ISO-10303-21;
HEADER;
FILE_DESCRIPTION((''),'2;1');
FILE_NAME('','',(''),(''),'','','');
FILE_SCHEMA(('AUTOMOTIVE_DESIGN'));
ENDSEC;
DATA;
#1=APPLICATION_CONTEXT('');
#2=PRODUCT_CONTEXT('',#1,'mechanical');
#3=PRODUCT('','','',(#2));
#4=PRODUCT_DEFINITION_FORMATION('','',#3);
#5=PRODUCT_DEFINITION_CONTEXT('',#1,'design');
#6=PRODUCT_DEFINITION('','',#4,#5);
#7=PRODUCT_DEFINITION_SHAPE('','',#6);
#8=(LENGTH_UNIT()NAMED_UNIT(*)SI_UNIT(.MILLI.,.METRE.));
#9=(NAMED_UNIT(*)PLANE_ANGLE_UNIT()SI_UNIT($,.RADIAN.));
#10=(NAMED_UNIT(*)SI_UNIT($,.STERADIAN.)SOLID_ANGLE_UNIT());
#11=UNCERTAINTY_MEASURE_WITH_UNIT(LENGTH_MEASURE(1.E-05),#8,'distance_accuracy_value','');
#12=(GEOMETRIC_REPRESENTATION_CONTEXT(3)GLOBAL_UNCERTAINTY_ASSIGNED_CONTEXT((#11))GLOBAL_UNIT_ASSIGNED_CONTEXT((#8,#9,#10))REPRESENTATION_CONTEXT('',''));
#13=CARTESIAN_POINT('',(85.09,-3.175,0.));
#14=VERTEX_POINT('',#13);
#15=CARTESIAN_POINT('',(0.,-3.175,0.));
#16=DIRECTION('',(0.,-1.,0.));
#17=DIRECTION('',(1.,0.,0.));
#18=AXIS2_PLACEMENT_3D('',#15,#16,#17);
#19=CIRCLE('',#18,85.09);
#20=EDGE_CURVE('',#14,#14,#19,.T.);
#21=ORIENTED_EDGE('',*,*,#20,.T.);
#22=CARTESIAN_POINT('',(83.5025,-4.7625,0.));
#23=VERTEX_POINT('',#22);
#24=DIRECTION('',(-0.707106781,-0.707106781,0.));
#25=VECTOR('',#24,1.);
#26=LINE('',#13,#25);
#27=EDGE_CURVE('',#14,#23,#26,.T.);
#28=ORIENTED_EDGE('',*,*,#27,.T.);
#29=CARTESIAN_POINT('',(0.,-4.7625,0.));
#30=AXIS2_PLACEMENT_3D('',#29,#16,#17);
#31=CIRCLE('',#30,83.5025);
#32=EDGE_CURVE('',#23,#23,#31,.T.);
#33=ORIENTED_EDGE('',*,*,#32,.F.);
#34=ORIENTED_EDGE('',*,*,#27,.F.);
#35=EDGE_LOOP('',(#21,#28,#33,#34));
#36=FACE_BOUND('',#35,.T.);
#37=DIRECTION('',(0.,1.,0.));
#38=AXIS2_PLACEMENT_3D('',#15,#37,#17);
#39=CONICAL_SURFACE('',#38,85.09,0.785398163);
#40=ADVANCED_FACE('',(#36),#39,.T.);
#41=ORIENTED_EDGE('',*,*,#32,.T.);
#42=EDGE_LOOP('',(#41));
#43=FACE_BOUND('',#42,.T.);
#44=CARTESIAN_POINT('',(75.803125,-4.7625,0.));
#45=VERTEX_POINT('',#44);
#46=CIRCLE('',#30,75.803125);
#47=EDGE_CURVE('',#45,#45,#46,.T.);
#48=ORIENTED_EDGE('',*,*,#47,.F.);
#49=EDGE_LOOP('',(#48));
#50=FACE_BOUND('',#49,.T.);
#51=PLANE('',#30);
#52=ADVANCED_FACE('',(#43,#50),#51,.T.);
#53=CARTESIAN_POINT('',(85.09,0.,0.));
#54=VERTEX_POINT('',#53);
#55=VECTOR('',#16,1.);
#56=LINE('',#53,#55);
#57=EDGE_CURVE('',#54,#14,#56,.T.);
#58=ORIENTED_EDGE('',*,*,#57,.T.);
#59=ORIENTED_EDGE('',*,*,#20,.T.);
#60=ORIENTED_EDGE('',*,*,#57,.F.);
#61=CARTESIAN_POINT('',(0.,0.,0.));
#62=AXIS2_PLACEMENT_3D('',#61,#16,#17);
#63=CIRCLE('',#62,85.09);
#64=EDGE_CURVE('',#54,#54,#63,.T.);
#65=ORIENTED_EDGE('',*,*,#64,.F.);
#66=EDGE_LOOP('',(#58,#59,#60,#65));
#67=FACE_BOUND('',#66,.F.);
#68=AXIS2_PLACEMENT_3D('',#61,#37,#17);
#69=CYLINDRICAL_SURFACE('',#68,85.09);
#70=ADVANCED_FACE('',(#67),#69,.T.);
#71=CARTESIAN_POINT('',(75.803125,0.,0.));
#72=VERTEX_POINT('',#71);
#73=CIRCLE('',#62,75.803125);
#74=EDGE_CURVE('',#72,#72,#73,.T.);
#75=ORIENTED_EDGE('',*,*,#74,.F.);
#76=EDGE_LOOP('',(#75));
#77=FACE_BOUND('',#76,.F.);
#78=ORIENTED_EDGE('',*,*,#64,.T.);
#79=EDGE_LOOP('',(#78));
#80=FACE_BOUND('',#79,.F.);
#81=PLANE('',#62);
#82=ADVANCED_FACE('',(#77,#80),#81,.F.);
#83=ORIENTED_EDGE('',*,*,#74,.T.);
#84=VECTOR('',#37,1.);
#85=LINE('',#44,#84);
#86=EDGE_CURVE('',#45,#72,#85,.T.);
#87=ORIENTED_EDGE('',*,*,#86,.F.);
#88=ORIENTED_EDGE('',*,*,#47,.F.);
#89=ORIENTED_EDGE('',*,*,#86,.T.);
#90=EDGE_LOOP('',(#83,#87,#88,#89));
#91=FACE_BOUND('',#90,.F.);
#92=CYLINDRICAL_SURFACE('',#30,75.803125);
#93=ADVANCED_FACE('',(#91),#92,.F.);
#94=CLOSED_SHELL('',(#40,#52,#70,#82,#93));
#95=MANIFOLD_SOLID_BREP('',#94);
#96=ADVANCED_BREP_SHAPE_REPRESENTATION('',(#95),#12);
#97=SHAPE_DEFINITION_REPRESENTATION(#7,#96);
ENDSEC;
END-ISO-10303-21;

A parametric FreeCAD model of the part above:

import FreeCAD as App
import Part
import Sketcher
Q = App.Units.Quantity


def edges_at(feature, points):
    """Names of the edges that pass closest to the given points."""
    edges = feature.Shape.Edges
    near = lambda p: min(range(len(edges)), key=lambda i: edges[i].distToShape(Part.Vertex(*p))[0])
    return sorted({f"Edge{near(p) + 1}" for p in points})

doc = App.newDocument("Part")
params = doc.addObject("Spreadsheet::Sheet", "Params")
for row, (alias, value) in enumerate([
    ("sketch1_diameter", "6.7 in"),
    ("pad1_length", "0.1875 in"),
    ("sketch2_diameter", "5.96875 in"),
    ("pocket1_length", "0.1875 in"),
    ("chamfer_size", "0.0625 in"),
], start=1):
    params.set(f"A{row}", alias)
    params.set(f"B{row}", "=" + value)
    params.setAlias(f"B{row}", alias)

body = doc.addObject("PartDesign::Body", "Body")

# Sketch on XZ plane
sketch1 = doc.addObject("Sketcher::SketchObject", "Sketch")
body.addObject(sketch1)
sketch1.AttachmentSupport = (doc.XZ_Plane, [""])
sketch1.MapMode = "FlatFace"
sketch1.addGeometry(Part.Circle(App.Vector(0, 0, 0), App.Vector(0, 0, 1), 85.09), False)
sketch1.addConstraint([
    Sketcher.Constraint("Coincident", 0, 3, -1, 1),
    Sketcher.Constraint("Diameter", 0, Q("6.7 in")),
])
sketch1.setExpression("Constraints[1]", "Params.sketch1_diameter")
pad1 = doc.addObject("PartDesign::Pad", "Pad")
body.addObject(pad1)
pad1.Profile = sketch1
pad1.setExpression("Length", "Params.pad1_length")

# Sketch on XZ plane
sketch2 = doc.addObject("Sketcher::SketchObject", "Sketch001")
body.addObject(sketch2)
sketch2.AttachmentSupport = (doc.XZ_Plane, [""])
sketch2.MapMode = "FlatFace"
sketch2.AttachmentOffset = App.Placement(App.Vector(0, 0, 0.1875 * 25.4), App.Rotation())
sketch2.addGeometry(Part.Circle(App.Vector(0, 0, 0), App.Vector(0, 0, 1), 75.803125), False)
sketch2.addConstraint([
    Sketcher.Constraint("Coincident", 0, 3, -1, 1),
    Sketcher.Constraint("Diameter", 0, Q("5.96875 in")),
])
sketch2.setExpression("Constraints[1]", "Params.sketch2_diameter")
pocket1 = doc.addObject("PartDesign::Pocket", "Pocket")
body.addObject(pocket1)
pocket1.Profile = sketch2
pocket1.setExpression("Length", "Params.pocket1_length")
doc.recompute()

chamfer = doc.addObject("PartDesign::Chamfer", "Chamfer")
body.addObject(chamfer)
chamfer.Base = (pocket1, edges_at(pocket1, [(-85.09, -4.763, 0)]))
chamfer.setExpression("Size", "Params.chamfer_size")

doc.recompute()
